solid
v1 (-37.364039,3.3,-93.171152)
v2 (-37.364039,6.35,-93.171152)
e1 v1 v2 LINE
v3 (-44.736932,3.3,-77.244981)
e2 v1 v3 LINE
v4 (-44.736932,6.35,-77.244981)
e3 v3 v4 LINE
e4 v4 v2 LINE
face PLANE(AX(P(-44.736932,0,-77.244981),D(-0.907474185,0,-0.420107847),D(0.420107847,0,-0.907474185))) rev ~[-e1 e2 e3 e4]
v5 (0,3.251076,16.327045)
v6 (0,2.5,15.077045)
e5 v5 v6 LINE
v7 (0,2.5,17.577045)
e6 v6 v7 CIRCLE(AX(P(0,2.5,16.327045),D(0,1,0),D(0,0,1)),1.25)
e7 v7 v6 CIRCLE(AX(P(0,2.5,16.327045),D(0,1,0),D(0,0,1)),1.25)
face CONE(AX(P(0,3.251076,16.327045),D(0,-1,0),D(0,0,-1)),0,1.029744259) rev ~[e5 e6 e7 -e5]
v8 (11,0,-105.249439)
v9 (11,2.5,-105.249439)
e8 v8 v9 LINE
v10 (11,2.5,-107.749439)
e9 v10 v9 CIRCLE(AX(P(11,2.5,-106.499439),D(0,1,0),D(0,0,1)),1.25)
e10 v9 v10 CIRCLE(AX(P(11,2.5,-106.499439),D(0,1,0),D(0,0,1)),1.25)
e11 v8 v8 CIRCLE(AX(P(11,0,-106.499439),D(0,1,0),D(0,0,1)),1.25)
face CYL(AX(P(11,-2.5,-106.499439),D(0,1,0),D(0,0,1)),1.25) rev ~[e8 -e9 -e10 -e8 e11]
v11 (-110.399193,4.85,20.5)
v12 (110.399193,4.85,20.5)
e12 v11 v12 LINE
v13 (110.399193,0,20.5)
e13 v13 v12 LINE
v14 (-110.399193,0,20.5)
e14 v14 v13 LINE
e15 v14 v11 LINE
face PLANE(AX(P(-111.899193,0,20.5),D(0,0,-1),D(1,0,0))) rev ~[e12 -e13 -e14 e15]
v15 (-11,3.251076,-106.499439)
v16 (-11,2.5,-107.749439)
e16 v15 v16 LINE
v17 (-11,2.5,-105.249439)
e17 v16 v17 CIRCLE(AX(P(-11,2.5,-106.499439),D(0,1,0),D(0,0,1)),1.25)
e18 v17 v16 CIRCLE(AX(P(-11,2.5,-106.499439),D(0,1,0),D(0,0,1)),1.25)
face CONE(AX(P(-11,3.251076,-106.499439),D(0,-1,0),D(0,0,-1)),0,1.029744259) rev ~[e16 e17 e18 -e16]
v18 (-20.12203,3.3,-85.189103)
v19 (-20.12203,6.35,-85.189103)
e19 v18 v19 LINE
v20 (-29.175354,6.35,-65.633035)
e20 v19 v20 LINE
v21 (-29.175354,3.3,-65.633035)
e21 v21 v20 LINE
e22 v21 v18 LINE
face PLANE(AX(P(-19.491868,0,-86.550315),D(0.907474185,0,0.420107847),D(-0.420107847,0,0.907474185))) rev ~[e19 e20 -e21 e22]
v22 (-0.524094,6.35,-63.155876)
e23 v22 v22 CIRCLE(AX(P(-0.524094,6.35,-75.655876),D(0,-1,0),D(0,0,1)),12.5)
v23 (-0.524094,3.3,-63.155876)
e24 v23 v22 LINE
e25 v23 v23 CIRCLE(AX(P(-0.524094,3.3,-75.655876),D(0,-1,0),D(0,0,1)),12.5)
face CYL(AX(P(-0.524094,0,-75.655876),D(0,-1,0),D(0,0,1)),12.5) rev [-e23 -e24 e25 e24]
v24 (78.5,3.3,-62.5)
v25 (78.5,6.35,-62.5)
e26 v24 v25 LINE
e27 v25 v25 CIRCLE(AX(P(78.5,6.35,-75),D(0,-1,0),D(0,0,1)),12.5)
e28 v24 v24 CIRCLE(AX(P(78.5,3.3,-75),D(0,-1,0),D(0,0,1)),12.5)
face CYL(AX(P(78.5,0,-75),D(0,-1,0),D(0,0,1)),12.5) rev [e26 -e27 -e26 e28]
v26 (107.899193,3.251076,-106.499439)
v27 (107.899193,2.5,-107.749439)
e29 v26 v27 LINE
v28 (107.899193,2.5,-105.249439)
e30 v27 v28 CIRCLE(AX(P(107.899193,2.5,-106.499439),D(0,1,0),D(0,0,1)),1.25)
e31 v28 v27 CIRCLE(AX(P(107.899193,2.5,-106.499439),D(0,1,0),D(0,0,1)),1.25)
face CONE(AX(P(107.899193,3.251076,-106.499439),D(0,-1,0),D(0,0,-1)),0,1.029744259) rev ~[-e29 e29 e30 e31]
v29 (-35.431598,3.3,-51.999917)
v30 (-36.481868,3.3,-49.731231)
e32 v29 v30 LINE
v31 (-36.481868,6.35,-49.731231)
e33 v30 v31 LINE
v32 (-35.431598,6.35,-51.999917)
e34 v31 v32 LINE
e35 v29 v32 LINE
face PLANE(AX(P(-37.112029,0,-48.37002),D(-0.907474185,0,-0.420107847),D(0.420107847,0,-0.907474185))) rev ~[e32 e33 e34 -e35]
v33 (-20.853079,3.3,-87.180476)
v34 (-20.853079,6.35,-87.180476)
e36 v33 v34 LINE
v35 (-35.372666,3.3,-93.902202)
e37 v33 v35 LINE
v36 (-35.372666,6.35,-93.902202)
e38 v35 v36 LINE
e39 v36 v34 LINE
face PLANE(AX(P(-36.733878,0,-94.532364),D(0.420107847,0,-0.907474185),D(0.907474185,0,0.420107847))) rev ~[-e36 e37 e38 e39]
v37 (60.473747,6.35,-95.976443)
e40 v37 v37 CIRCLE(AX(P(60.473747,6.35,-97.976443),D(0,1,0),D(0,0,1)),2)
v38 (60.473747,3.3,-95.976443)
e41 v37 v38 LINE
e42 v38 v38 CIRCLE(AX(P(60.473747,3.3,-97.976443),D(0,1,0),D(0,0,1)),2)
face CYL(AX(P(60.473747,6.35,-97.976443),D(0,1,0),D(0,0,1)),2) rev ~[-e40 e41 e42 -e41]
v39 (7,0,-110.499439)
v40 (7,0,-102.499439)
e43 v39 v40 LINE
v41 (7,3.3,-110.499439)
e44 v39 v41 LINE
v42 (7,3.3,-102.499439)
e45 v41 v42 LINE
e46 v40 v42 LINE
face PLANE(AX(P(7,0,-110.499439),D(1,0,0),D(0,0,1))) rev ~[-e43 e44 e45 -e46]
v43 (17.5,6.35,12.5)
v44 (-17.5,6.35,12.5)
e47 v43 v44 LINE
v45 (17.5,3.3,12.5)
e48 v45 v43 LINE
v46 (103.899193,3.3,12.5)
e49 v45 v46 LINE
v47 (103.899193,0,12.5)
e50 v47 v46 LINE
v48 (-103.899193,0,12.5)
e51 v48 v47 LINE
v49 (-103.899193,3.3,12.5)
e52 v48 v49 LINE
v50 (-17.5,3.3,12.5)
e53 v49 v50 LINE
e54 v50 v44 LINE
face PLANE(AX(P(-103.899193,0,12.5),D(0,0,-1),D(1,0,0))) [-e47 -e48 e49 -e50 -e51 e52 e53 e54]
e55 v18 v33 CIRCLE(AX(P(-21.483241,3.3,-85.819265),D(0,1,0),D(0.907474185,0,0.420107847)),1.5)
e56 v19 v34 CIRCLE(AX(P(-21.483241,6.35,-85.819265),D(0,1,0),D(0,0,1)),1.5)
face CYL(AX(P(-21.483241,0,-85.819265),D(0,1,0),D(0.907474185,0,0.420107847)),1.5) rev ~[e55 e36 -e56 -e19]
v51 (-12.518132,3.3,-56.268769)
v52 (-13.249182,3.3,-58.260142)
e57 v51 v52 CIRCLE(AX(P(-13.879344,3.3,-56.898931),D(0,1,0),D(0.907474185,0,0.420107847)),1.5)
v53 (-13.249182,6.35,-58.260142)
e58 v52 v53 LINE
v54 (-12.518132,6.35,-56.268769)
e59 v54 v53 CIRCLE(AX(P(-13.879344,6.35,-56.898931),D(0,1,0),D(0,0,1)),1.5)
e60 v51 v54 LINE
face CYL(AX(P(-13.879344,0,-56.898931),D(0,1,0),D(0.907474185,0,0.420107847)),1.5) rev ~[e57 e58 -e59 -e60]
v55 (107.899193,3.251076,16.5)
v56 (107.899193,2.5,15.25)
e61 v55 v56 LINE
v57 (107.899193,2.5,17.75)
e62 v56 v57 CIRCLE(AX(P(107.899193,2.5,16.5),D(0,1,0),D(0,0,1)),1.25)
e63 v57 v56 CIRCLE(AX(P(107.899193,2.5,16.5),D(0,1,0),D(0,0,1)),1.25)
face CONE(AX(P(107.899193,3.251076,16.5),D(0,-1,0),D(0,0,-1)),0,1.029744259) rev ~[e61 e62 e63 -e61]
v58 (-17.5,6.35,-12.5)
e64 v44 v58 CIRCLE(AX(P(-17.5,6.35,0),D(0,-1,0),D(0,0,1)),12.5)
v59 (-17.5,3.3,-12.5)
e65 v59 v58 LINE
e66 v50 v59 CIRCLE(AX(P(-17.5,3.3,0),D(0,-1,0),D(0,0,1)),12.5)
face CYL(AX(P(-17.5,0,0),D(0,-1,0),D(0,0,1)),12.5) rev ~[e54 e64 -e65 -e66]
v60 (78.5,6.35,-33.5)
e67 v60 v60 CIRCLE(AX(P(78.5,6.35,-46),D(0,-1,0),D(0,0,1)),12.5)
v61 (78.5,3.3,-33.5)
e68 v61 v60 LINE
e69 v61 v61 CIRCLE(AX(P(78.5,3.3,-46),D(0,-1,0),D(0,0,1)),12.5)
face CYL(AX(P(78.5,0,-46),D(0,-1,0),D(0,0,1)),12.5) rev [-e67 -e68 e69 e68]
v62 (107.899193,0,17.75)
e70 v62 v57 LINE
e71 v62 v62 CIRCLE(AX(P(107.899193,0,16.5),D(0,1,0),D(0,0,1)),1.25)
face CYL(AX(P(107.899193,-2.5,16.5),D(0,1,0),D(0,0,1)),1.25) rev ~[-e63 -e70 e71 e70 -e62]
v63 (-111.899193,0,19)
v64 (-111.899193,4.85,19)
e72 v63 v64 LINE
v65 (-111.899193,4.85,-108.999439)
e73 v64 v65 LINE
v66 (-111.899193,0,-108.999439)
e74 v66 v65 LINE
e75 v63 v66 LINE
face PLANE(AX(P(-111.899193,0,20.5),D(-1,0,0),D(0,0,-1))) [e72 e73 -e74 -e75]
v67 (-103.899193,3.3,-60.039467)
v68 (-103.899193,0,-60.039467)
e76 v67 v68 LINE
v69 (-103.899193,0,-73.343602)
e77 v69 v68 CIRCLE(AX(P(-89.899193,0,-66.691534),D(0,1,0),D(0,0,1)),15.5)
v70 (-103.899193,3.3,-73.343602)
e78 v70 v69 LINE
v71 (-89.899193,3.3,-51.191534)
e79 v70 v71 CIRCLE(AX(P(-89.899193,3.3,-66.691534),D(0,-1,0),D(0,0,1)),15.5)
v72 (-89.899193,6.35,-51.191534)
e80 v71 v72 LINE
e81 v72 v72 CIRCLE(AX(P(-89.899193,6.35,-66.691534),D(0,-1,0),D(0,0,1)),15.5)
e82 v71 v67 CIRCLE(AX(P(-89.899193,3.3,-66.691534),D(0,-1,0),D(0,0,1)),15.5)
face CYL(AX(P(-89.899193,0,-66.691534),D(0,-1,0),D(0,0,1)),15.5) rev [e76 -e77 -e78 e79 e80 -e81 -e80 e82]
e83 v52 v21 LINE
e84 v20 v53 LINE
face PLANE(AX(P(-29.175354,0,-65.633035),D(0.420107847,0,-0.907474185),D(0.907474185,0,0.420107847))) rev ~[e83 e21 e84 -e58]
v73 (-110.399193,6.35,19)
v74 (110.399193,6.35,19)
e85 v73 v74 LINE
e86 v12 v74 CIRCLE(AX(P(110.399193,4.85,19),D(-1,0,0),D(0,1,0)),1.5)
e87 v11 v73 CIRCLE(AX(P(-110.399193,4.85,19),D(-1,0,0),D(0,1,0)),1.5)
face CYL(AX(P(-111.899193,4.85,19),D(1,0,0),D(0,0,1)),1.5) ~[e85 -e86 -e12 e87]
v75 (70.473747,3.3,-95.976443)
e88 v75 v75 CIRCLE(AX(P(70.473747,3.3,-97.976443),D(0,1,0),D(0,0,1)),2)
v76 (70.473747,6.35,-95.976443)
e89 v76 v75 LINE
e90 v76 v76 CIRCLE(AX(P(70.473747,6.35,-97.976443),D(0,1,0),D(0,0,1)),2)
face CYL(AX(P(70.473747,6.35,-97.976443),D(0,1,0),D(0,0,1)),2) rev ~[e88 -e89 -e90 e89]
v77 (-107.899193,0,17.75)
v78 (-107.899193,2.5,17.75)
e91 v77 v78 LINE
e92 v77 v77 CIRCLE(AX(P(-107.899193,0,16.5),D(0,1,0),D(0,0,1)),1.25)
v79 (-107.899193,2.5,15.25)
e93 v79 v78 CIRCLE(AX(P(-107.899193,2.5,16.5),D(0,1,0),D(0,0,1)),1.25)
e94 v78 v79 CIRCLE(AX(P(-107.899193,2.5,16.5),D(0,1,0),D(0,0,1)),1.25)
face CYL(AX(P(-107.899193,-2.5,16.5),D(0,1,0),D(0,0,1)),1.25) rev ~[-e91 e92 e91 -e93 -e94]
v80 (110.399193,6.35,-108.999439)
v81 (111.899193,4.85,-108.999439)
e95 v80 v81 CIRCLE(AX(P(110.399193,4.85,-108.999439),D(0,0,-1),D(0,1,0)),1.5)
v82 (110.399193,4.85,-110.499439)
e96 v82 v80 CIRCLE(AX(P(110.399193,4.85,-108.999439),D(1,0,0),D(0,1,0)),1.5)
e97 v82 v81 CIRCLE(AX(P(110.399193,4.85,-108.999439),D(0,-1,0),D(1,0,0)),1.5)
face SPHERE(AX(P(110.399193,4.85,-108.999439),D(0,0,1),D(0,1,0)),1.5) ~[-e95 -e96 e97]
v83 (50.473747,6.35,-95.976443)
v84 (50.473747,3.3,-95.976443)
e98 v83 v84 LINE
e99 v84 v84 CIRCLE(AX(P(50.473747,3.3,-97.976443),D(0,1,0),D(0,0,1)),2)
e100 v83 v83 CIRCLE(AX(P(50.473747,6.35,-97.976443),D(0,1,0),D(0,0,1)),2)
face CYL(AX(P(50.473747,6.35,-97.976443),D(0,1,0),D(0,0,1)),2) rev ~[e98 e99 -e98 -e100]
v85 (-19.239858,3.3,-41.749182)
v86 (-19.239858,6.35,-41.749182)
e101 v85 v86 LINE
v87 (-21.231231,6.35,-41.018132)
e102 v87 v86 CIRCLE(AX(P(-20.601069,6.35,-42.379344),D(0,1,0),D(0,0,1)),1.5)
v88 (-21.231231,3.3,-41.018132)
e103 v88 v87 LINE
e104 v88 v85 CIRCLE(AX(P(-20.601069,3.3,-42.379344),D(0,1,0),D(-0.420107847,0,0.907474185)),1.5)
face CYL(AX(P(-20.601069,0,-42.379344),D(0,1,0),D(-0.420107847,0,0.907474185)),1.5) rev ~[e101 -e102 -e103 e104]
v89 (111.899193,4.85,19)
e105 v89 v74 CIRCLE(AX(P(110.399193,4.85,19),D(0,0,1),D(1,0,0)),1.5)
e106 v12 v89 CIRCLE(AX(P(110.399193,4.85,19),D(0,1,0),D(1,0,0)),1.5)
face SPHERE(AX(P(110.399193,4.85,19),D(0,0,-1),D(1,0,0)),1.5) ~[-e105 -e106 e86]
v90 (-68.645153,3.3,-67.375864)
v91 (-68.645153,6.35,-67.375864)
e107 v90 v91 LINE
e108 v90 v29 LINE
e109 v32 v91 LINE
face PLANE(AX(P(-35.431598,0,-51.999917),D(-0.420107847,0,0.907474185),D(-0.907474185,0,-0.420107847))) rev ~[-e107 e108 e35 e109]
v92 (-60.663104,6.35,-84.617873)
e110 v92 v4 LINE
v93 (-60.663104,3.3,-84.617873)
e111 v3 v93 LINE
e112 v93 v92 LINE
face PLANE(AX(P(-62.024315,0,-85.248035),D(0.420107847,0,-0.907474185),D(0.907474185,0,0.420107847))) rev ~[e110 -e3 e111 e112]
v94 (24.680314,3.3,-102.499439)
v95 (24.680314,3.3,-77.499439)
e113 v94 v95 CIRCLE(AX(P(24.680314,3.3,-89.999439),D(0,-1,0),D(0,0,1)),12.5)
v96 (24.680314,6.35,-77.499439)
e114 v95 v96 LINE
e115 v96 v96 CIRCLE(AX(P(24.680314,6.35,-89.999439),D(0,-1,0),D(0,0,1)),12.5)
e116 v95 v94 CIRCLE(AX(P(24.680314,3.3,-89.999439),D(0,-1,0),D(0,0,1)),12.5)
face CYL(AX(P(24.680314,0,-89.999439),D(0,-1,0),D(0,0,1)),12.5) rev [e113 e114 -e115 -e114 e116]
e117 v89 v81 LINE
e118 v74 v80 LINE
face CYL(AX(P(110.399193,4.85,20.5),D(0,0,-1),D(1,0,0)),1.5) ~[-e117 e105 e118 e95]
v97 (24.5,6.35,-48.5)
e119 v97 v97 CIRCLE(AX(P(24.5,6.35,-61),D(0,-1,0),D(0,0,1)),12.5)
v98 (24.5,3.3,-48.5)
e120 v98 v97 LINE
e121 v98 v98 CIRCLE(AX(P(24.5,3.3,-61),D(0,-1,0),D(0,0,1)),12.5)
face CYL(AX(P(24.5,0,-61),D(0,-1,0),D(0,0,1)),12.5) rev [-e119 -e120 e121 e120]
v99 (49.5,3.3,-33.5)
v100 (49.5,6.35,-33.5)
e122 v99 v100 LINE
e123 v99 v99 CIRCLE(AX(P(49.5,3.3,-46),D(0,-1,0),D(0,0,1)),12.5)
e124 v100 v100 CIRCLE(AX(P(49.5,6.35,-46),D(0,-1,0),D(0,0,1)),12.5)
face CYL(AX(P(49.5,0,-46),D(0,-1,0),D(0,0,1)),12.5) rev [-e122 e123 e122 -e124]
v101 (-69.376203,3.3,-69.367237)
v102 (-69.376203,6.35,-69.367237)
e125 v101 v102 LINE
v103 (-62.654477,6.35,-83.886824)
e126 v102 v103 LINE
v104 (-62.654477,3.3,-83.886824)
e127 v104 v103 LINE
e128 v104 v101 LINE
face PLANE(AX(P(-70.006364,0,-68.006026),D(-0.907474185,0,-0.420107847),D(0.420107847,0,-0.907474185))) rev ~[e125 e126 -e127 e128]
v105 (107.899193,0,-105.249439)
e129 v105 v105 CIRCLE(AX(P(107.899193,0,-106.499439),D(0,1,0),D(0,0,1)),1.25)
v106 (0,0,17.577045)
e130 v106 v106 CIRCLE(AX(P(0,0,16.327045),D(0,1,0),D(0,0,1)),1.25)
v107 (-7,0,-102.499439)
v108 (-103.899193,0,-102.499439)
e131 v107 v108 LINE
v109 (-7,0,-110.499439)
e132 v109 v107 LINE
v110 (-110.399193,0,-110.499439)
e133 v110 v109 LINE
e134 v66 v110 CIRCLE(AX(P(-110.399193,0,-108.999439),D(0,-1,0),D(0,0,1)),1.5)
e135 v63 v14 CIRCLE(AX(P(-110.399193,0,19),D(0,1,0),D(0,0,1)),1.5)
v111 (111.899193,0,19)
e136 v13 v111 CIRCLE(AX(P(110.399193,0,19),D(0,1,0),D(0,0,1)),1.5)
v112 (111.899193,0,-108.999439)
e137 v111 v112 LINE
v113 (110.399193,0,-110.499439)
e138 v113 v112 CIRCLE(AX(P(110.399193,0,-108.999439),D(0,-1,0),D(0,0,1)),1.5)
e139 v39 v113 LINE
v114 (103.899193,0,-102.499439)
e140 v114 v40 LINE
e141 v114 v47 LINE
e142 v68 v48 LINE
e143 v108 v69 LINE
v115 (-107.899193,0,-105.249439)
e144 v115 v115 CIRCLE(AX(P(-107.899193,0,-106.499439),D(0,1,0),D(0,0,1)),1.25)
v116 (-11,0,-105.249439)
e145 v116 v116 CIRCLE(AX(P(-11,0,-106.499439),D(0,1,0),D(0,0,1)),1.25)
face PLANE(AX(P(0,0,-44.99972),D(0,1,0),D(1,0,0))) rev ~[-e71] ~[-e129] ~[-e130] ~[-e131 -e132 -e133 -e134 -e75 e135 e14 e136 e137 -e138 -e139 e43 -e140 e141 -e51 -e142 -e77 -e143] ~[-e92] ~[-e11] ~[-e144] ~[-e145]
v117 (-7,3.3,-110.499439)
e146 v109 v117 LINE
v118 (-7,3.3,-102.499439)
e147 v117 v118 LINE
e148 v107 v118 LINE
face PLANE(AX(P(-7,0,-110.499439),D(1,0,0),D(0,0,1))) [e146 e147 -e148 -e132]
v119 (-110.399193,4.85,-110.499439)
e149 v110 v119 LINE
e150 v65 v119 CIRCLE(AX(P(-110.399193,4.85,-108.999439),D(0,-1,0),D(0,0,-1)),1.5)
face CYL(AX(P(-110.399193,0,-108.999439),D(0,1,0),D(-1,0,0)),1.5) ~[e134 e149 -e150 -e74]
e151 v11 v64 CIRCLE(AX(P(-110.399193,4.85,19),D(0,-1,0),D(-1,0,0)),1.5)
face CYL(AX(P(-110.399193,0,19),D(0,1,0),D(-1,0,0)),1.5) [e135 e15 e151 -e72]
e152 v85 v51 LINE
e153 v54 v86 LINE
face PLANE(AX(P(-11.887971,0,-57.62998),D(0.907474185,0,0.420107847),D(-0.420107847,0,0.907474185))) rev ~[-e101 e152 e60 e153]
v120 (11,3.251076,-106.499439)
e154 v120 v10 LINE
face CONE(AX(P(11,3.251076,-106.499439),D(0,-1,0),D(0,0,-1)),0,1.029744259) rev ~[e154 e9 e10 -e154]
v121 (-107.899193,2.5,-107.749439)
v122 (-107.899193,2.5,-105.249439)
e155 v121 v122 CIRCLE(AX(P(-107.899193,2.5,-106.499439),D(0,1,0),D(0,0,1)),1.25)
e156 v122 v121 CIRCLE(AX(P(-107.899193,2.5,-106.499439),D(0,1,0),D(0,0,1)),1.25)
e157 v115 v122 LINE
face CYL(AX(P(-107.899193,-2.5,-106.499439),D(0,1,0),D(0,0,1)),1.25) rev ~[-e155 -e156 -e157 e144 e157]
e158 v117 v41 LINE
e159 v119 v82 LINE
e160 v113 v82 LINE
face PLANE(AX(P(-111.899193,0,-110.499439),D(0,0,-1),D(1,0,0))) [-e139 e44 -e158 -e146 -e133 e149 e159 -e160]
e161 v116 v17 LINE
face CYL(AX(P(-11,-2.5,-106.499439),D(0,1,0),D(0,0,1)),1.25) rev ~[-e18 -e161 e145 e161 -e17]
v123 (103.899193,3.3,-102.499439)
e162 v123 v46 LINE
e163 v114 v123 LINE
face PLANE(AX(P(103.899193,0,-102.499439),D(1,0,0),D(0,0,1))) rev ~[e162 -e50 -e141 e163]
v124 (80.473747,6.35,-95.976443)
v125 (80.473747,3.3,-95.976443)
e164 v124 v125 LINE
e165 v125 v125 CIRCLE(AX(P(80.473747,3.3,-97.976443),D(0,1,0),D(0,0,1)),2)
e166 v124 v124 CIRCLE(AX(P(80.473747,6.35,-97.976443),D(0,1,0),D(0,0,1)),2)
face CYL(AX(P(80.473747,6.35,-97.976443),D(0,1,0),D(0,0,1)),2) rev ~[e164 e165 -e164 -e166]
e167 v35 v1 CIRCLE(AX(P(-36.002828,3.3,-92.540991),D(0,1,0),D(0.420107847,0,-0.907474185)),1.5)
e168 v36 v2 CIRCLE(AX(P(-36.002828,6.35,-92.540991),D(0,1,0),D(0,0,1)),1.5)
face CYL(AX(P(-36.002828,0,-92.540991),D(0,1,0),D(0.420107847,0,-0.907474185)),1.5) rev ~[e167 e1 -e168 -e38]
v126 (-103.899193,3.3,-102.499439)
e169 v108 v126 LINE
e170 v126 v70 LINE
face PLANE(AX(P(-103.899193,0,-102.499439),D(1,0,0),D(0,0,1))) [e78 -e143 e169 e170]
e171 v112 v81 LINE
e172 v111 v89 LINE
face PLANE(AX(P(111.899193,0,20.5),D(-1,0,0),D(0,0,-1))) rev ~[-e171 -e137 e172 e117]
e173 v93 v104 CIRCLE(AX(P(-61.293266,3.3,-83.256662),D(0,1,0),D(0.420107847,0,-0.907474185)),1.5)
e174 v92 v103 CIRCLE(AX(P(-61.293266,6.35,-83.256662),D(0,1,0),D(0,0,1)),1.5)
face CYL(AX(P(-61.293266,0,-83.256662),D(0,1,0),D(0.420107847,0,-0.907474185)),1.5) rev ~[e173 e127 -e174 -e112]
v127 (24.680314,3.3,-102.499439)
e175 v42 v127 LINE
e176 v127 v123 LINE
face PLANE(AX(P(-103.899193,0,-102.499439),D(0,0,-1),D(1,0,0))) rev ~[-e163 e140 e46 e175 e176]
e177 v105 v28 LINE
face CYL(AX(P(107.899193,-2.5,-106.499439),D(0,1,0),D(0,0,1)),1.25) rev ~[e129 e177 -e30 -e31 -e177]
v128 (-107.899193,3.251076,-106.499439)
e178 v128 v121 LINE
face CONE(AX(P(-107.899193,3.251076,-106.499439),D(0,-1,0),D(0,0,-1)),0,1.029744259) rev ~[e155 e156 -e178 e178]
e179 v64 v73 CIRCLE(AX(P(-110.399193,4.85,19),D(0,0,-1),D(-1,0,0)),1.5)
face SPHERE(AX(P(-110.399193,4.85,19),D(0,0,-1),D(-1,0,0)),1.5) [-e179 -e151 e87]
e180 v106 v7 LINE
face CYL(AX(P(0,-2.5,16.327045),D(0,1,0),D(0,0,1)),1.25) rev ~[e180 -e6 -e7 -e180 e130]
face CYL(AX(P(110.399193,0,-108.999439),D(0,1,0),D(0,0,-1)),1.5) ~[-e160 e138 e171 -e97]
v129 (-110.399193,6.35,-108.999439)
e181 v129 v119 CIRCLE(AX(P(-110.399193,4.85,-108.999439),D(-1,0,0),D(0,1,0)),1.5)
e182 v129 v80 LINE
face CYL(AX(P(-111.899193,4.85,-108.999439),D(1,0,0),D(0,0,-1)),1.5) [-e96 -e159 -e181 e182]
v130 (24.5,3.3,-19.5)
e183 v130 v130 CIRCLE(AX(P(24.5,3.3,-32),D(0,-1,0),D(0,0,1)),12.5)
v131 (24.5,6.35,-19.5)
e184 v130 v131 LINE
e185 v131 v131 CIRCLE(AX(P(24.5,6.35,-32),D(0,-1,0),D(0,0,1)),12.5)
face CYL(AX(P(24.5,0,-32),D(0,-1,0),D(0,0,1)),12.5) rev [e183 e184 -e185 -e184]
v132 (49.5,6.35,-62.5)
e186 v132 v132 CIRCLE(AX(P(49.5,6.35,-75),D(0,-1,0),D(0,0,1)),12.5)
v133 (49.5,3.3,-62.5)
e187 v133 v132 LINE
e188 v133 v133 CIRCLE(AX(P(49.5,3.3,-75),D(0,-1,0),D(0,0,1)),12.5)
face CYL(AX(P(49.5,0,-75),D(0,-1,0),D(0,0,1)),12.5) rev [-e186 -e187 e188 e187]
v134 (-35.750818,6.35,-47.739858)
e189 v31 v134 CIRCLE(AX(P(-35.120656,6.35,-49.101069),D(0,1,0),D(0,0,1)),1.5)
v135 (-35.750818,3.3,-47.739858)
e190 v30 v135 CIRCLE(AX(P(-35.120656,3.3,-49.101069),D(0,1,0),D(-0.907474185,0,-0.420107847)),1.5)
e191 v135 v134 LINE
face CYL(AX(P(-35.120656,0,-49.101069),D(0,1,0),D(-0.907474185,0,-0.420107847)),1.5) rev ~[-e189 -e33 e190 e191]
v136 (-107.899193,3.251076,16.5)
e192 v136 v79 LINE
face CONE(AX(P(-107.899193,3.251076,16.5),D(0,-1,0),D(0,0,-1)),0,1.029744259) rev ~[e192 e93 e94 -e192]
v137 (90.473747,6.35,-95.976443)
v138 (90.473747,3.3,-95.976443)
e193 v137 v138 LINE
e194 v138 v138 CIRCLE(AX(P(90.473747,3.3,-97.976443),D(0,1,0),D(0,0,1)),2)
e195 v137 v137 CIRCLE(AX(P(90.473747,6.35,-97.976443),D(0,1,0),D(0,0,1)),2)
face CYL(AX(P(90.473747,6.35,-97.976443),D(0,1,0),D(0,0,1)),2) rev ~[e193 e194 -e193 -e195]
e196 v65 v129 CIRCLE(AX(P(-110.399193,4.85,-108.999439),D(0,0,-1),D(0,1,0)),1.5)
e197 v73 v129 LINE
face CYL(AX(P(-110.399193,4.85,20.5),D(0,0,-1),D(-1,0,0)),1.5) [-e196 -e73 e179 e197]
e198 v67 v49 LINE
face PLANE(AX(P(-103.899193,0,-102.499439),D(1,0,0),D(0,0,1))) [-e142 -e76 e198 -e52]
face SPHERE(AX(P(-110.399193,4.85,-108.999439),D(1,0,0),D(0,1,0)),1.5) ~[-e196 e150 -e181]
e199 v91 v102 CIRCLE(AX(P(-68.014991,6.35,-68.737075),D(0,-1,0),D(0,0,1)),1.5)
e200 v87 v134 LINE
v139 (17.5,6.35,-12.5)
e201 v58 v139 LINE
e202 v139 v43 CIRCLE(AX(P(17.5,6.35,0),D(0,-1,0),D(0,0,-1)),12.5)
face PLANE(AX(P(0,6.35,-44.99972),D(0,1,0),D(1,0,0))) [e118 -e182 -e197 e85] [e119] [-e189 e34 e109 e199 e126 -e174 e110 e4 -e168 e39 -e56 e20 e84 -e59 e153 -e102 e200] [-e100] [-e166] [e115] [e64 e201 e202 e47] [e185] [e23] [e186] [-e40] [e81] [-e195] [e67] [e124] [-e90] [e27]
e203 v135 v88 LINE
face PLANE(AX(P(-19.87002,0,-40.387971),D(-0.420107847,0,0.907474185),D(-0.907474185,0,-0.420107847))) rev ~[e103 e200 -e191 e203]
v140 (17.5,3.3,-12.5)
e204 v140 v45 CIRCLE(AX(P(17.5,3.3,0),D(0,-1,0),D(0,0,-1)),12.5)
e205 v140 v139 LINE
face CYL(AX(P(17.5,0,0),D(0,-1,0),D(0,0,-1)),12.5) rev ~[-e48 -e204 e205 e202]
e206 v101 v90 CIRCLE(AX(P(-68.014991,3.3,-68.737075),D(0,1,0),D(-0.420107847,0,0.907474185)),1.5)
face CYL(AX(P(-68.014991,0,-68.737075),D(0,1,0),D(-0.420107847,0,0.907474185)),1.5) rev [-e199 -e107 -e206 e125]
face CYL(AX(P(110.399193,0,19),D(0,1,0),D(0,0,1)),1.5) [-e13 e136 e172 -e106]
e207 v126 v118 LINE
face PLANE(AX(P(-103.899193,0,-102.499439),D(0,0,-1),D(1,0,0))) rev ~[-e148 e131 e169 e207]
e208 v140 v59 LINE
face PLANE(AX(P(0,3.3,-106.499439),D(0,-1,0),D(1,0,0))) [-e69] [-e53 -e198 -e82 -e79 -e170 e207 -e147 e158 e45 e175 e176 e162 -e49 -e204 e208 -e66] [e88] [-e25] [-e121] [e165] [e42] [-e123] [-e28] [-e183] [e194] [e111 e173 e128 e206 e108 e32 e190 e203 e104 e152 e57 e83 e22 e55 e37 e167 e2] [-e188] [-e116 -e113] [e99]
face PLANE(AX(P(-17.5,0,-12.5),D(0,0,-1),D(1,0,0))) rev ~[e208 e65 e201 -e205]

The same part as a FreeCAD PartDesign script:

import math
import FreeCAD as App
import Part
import Sketcher

V = App.Vector


def edges_at(feature, points):
    """Names of the edges that pass closest to the given points."""
    edges = feature.Shape.Edges
    near = lambda p: min(range(len(edges)), key=lambda i: edges[i].distToShape(Part.Vertex(*p))[0])
    return sorted({f"Edge{near(p) + 1}" for p in points})


def add_polygon(sketch, points):
    """Adds a closed chain of lines whose ends are joined by coincident constraints."""
    first, n = sketch.GeometryCount, len(points)
    for a, b in zip(points, points[1:] + points[:1]):
        sketch.addGeometry(Part.LineSegment(App.Vector(*a, 0), App.Vector(*b, 0)), False)
    for i in range(n):
        sketch.addConstraint(Sketcher.Constraint("Coincident", first + i, 2, first + (i + 1) % n, 1))

doc = App.newDocument("Part")
body = doc.addObject("PartDesign::Body", "Body")

sketch1 = body.newObject("Sketcher::SketchObject", "Sketch")
sketch1.AttachmentSupport = (doc.getObject("XZ_Plane"), [""])
sketch1.MapMode = "FlatFace"
add_polygon(sketch1, [(-111.899193, -110.499439), (-111.899193, 20.5), (111.899193, 20.5), (111.899193, -110.499439)])
sketch1.addConstraint(Sketcher.Constraint("Vertical", 0))
sketch1.addConstraint(Sketcher.Constraint("Horizontal", 1))
sketch1.addConstraint(Sketcher.Constraint("Vertical", 2))
sketch1.addConstraint(Sketcher.Constraint("Horizontal", 3))
sketch1.addConstraint(Sketcher.Constraint("DistanceY", -1, 1, 0, 2, 20.5))
sketch1.addConstraint(Sketcher.Constraint("DistanceY", 0, 1, 0, 2, 130.999439))
sketch1.addConstraint(Sketcher.Constraint("DistanceX", 1, 1, 1, 2, 223.798385))
sketch1.addConstraint(Sketcher.Constraint("DistanceX", 0, 2, -1, 1, 111.899193))
pad1 = body.newObject("PartDesign::Pad", "Pad")
pad1.Profile = sketch1
pad1.Length = 6.35
pad1.Reversed = True

sketch2 = body.newObject("Sketcher::SketchObject", "Sketch001")
sketch2.AttachmentSupport = (doc.getObject("XZ_Plane"), [""])
sketch2.MapMode = "FlatFace"
sketch2.addGeometry(Part.Circle(V(24.5, -32, 0), V(0, 0, 1), 12.5), False)
sketch2.addConstraint(Sketcher.Constraint("Diameter", 0, 25.0))
sketch2.addConstraint(Sketcher.Constraint("DistanceY", 0, 3, -1, 1, 32.0))
sketch2.addConstraint(Sketcher.Constraint("DistanceX", -1, 1, 0, 3, 24.5))
pocket1 = body.newObject("PartDesign::Pocket", "Pocket")
pocket1.Profile = sketch2
pocket1.Type = "UpToFirst"

sketch3 = body.newObject("Sketcher::SketchObject", "Sketch002")
sketch3.AttachmentSupport = (doc.getObject("XZ_Plane"), [""])
sketch3.MapMode = "FlatFace"
sketch3.addGeometry(Part.Circle(V(24.5, -61, 0), V(0, 0, 1), 12.5), False)
sketch3.addConstraint(Sketcher.Constraint("Diameter", 0, 25.0))
sketch3.addConstraint(Sketcher.Constraint("DistanceY", 0, 3, -1, 1, 61.0))
sketch3.addConstraint(Sketcher.Constraint("DistanceX", -1, 1, 0, 3, 24.5))
pocket2 = body.newObject("PartDesign::Pocket", "Pocket001")
pocket2.Profile = sketch3
pocket2.Type = "UpToFirst"

sketch4 = body.newObject("Sketcher::SketchObject", "Sketch003")
sketch4.AttachmentSupport = (doc.getObject("XZ_Plane"), [""])
sketch4.MapMode = "FlatFace"
sketch4.addGeometry(Part.Circle(V(49.5, -46, 0), V(0, 0, 1), 12.5), False)
sketch4.addConstraint(Sketcher.Constraint("Diameter", 0, 25.0))
sketch4.addConstraint(Sketcher.Constraint("DistanceY", 0, 3, -1, 1, 46.0))
sketch4.addConstraint(Sketcher.Constraint("DistanceX", -1, 1, 0, 3, 49.5))
pocket3 = body.newObject("PartDesign::Pocket", "Pocket002")
pocket3.Profile = sketch4
pocket3.Type = "UpToFirst"

sketch5 = body.newObject("Sketcher::SketchObject", "Sketch004")
sketch5.AttachmentSupport = (doc.getObject("XZ_Plane"), [""])
sketch5.MapMode = "FlatFace"
sketch5.addGeometry(Part.Circle(V(49.5, -75, 0), V(0, 0, 1), 12.5), False)
sketch5.addConstraint(Sketcher.Constraint("Diameter", 0, 25.0))
sketch5.addConstraint(Sketcher.Constraint("DistanceY", 0, 3, -1, 1, 75.0))
sketch5.addConstraint(Sketcher.Constraint("DistanceX", -1, 1, 0, 3, 49.5))
pocket4 = body.newObject("PartDesign::Pocket", "Pocket003")
pocket4.Profile = sketch5
pocket4.Type = "UpToFirst"

sketch6 = body.newObject("Sketcher::SketchObject", "Sketch005")
sketch6.AttachmentSupport = (doc.getObject("XZ_Plane"), [""])
sketch6.MapMode = "FlatFace"
sketch6.addGeometry(Part.Circle(V(78.5, -75, 0), V(0, 0, 1), 12.5), False)
sketch6.addConstraint(Sketcher.Constraint("Diameter", 0, 25.0))
sketch6.addConstraint(Sketcher.Constraint("DistanceY", 0, 3, -1, 1, 75.0))
sketch6.addConstraint(Sketcher.Constraint("DistanceX", -1, 1, 0, 3, 78.5))
pocket5 = body.newObject("PartDesign::Pocket", "Pocket004")
pocket5.Profile = sketch6
pocket5.Type = "UpToFirst"

sketch7 = body.newObject("Sketcher::SketchObject", "Sketch006")
sketch7.AttachmentSupport = (doc.getObject("XZ_Plane"), [""])
sketch7.MapMode = "FlatFace"
sketch7.addGeometry(Part.Circle(V(78.5, -46, 0), V(0, 0, 1), 12.5), False)
sketch7.addConstraint(Sketcher.Constraint("Diameter", 0, 25.0))
sketch7.addConstraint(Sketcher.Constraint("DistanceY", 0, 3, -1, 1, 46.0))
sketch7.addConstraint(Sketcher.Constraint("DistanceX", -1, 1, 0, 3, 78.5))
pocket6 = body.newObject("PartDesign::Pocket", "Pocket005")
pocket6.Profile = sketch7
pocket6.Type = "UpToFirst"

sketch8 = body.newObject("Sketcher::SketchObject", "Sketch007")
sketch8.AttachmentSupport = (doc.getObject("XZ_Plane"), [""])
sketch8.MapMode = "FlatFace"
sketch8.addGeometry(Part.Circle(V(-89.899193, -66.691534, 0), V(0, 0, 1), 15.5), False)
sketch8.addConstraint(Sketcher.Constraint("Diameter", 0, 31.0))
sketch8.addConstraint(Sketcher.Constraint("DistanceX", 0, 3, -1, 1, 89.899193))
sketch8.addConstraint(Sketcher.Constraint("DistanceY", 0, 3, -1, 1, 66.691534))
pocket7 = body.newObject("PartDesign::Pocket", "Pocket006")
pocket7.Profile = sketch8
pocket7.Type = "UpToFirst"

sketch9 = body.newObject("Sketcher::SketchObject", "Sketch008")
sketch9.AttachmentSupport = (doc.getObject("XZ_Plane"), [""])
sketch9.MapMode = "FlatFace"
sketch9.addGeometry(Part.Circle(V(24.680314, -89.999439, 0), V(0, 0, 1), 12.5), False)
sketch9.addConstraint(Sketcher.Constraint("Diameter", 0, 25.0))
sketch9.addConstraint(Sketcher.Constraint("DistanceY", 0, 3, -1, 1, 89.999439))
sketch9.addConstraint(Sketcher.Constraint("DistanceX", -1, 1, 0, 3, 24.680314))
pocket8 = body.newObject("PartDesign::Pocket", "Pocket007")
pocket8.Profile = sketch9
pocket8.Type = "UpToFirst"

sketch10 = body.newObject("Sketcher::SketchObject", "Sketch009")
sketch10.AttachmentSupport = (doc.getObject("XZ_Plane"), [""])
sketch10.MapMode = "FlatFace"
sketch10.addGeometry(Part.Circle(V(-0.524094, -75.655876, 0), V(0, 0, 1), 12.5), False)
sketch10.addConstraint(Sketcher.Constraint("Diameter", 0, 25.0))
sketch10.addConstraint(Sketcher.Constraint("DistanceX", 0, 3, -1, 1, 0.524094))
sketch10.addConstraint(Sketcher.Constraint("DistanceY", 0, 3, -1, 1, 75.655876))
pocket9 = body.newObject("PartDesign::Pocket", "Pocket008")
pocket9.Profile = sketch10
pocket9.Type = "UpToFirst"

sketch11 = body.newObject("Sketcher::SketchObject", "Sketch010")
sketch11.AttachmentSupport = (doc.getObject("XZ_Plane"), [""])
sketch11.MapMode = "FlatFace"
sketch11.addGeometry(Part.LineSegment(V(-17.5, 12.5, 0), V(17.5, 12.5, 0)), False)
sketch11.addGeometry(Part.ArcOfCircle(Part.Circle(V(17.5, 0, 0), V(0, 0, 1), 12.5), math.radians(-90), math.radians(90)), False)
sketch11.addGeometry(Part.LineSegment(V(17.5, -12.5, 0), V(-17.5, -12.5, 0)), False)
sketch11.addGeometry(Part.ArcOfCircle(Part.Circle(V(-17.5, 0, 0), V(0, 0, 1), 12.5), math.radians(90), math.radians(270)), False)
sketch11.addConstraint(Sketcher.Constraint("Tangent", 0, 2, 1, 2))
sketch11.addConstraint(Sketcher.Constraint("Tangent", 1, 1, 2, 1))
sketch11.addConstraint(Sketcher.Constraint("Tangent", 2, 2, 3, 2))
sketch11.addConstraint(Sketcher.Constraint("Tangent", 3, 1, 0, 1))
sketch11.addConstraint(Sketcher.Constraint("Horizontal", 0))
sketch11.addConstraint(Sketcher.Constraint("Horizontal", 2))
sketch11.addConstraint(Sketcher.Constraint("Symmetric", 1, 3, 3, 3, -1, 1))
sketch11.addConstraint(Sketcher.Constraint("Radius", 1, 12.5))
sketch11.addConstraint(Sketcher.Constraint("DistanceX", 0, 1, 0, 2, 35.0))
pocket10 = body.newObject("PartDesign::Pocket", "Pocket009")
pocket10.Profile = sketch11
pocket10.Type = "UpToFirst"

sketch12 = body.newObject("Sketcher::SketchObject", "Sketch011")
sketch12.AttachmentSupport = (doc.getObject("XZ_Plane"), [""])
sketch12.MapMode = "FlatFace"
add_polygon(sketch12, [(-62.024315, -85.248035), (-70.006364, -68.006026), (-35.431598, -51.999917), (-37.112029, -48.37002), (-19.87002, -40.387971), (-11.887971, -57.62998), (-29.175354, -65.633035), (-19.491868, -86.550315), (-36.733878, -94.532364), (-44.736932, -77.244981)])
sketch12.addConstraint(Sketcher.Constraint("Perpendicular", 0, 1))
sketch12.addConstraint(Sketcher.Constraint("Perpendicular", 1, 2))
sketch12.addConstraint(Sketcher.Constraint("Perpendicular", 2, 3))
sketch12.addConstraint(Sketcher.Constraint("Perpendicular", 3, 4))
sketch12.addConstraint(Sketcher.Constraint("Perpendicular", 4, 5))
sketch12.addConstraint(Sketcher.Constraint("Perpendicular", 5, 6))
sketch12.addConstraint(Sketcher.Constraint("Perpendicular", 6, 7))
sketch12.addConstraint(Sketcher.Constraint("Perpendicular", 7, 8))
sketch12.addConstraint(Sketcher.Constraint("Perpendicular", 8, 9))
sketch12.addConstraint(Sketcher.Constraint("Equal", 0, 3))
sketch12.addConstraint(Sketcher.Constraint("Equal", 3, 4))
sketch12.addConstraint(Sketcher.Constraint("Equal", 4, 7))
sketch12.addConstraint(Sketcher.Constraint("Equal", 5, 8))
sketch12.addConstraint(Sketcher.Constraint("Equal", 8, 9))
sketch12.addConstraint(Sketcher.Constraint("Distance", 0, 19.0))
sketch12.addConstraint(Sketcher.Constraint("Distance", 2, 4.0))
sketch12.addConstraint(Sketcher.Constraint("Distance", 1, 38.1))
sketch12.addConstraint(Sketcher.Constraint("DistanceY", 9, 2, 5, 2, 19.615))
sketch12.addConstraint(Sketcher.Constraint("DistanceX", 2, 2, -1, 1, 37.112029))
sketch12.addConstraint(Sketcher.Constraint("DistanceY", 2, 2, -1, 1, 48.37002))
pocket11 = body.newObject("PartDesign::Pocket", "Pocket010")
pocket11.Profile = sketch12
pocket11.Type = "UpToFirst"
doc.recompute()

fillet = body.newObject("PartDesign::Fillet", "Fillet")
fillet.Base = (pocket11, edges_at(pocket11, [
    (-19.492, 3.175, -86.55),
    (-36.734, 3.175, -94.532),
    (-62.024, 3.175, -85.248),
    (-70.006, 3.175, -68.006),
    (-37.112, 3.175, -48.37),
    (-19.87, 3.175, -40.388),
    (-11.888, 3.175, -57.63),
]))
fillet.Radius = 1.5

sketch13 = body.newObject("Sketcher::SketchObject", "Sketch012")
sketch13.AttachmentSupport = (doc.getObject("XZ_Plane"), [""])
sketch13.MapMode = "FlatFace"
sketch13.AttachmentOffset = App.Placement(V(0, 0, -6.35), App.Rotation())
sketch13.addGeometry(Part.Circle(V(50.473747, -97.976443, 0), V(0, 0, 1), 2), False)
sketch13.addConstraint(Sketcher.Constraint("Diameter", 0, 4.0))
sketch13.addConstraint(Sketcher.Constraint("DistanceX", -1, 1, 0, 3, 50.473747))
sketch13.addConstraint(Sketcher.Constraint("DistanceY", 0, 3, -1, 1, 97.976443))
pocket12 = body.newObject("PartDesign::Pocket", "Pocket011")
pocket12.Profile = sketch13
pocket12.Type = "UpToFirst"
pocket12.Reversed = True

sketch14 = body.newObject("Sketcher::SketchObject", "Sketch013")
sketch14.AttachmentSupport = (doc.getObject("XZ_Plane"), [""])
sketch14.MapMode = "FlatFace"
sketch14.AttachmentOffset = App.Placement(V(0, 0, -6.35), App.Rotation())
sketch14.addGeometry(Part.Circle(V(60.473747, -97.976443, 0), V(0, 0, 1), 2), False)
sketch14.addConstraint(Sketcher.Constraint("Diameter", 0, 4.0))
sketch14.addConstraint(Sketcher.Constraint("DistanceX", -1, 1, 0, 3, 60.473747))
sketch14.addConstraint(Sketcher.Constraint("DistanceY", 0, 3, -1, 1, 97.976443))
pocket13 = body.newObject("PartDesign::Pocket", "Pocket012")
pocket13.Profile = sketch14
pocket13.Type = "UpToFirst"
pocket13.Reversed = True

sketch15 = body.newObject("Sketcher::SketchObject", "Sketch014")
sketch15.AttachmentSupport = (doc.getObject("XZ_Plane"), [""])
sketch15.MapMode = "FlatFace"
sketch15.AttachmentOffset = App.Placement(V(0, 0, -6.35), App.Rotation())
sketch15.addGeometry(Part.Circle(V(70.473747, -97.976443, 0), V(0, 0, 1), 2), False)
sketch15.addConstraint(Sketcher.Constraint("Diameter", 0, 4.0))
sketch15.addConstraint(Sketcher.Constraint("DistanceX", -1, 1, 0, 3, 70.473747))
sketch15.addConstraint(Sketcher.Constraint("DistanceY", 0, 3, -1, 1, 97.976443))
pocket14 = body.newObject("PartDesign::Pocket", "Pocket013")
pocket14.Profile = sketch15
pocket14.Type = "UpToFirst"
pocket14.Reversed = True

sketch16 = body.newObject("Sketcher::SketchObject", "Sketch015")
sketch16.AttachmentSupport = (doc.getObject("XZ_Plane"), [""])
sketch16.MapMode = "FlatFace"
sketch16.AttachmentOffset = App.Placement(V(0, 0, -6.35), App.Rotation())
sketch16.addGeometry(Part.Circle(V(80.473747, -97.976443, 0), V(0, 0, 1), 2), False)
sketch16.addConstraint(Sketcher.Constraint("Diameter", 0, 4.0))
sketch16.addConstraint(Sketcher.Constraint("DistanceX", -1, 1, 0, 3, 80.473747))
sketch16.addConstraint(Sketcher.Constraint("DistanceY", 0, 3, -1, 1, 97.976443))
pocket15 = body.newObject("PartDesign::Pocket", "Pocket014")
pocket15.Profile = sketch16
pocket15.Type = "UpToFirst"
pocket15.Reversed = True

sketch17 = body.newObject("Sketcher::SketchObject", "Sketch016")
sketch17.AttachmentSupport = (doc.getObject("XZ_Plane"), [""])
sketch17.MapMode = "FlatFace"
sketch17.AttachmentOffset = App.Placement(V(0, 0, -6.35), App.Rotation())
sketch17.addGeometry(Part.Circle(V(90.473747, -97.976443, 0), V(0, 0, 1), 2), False)
sketch17.addConstraint(Sketcher.Constraint("Diameter", 0, 4.0))
sketch17.addConstraint(Sketcher.Constraint("DistanceX", -1, 1, 0, 3, 90.473747))
sketch17.addConstraint(Sketcher.Constraint("DistanceY", 0, 3, -1, 1, 97.976443))
pocket16 = body.newObject("PartDesign::Pocket", "Pocket015")
pocket16.Profile = sketch17
pocket16.Type = "UpToFirst"
pocket16.Reversed = True

sketch18 = body.newObject("Sketcher::SketchObject", "Sketch017")
sketch18.AttachmentSupport = (doc.getObject("XZ_Plane"), [""])
sketch18.MapMode = "FlatFace"
add_polygon(sketch18, [(-103.899193, 12.5), (-103.899193, -102.499439), (103.899193, -102.499439), (103.899193, 12.5)])
sketch18.addConstraint(Sketcher.Constraint("Vertical", 0))
sketch18.addConstraint(Sketcher.Constraint("Horizontal", 1))
sketch18.addConstraint(Sketcher.Constraint("Vertical", 2))
sketch18.addConstraint(Sketcher.Constraint("Horizontal", 3))
sketch18.addConstraint(Sketcher.Constraint("DistanceY", -1, 1, 2, 2, 12.5))
sketch18.addConstraint(Sketcher.Constraint("DistanceY", 0, 2, 0, 1, 114.999439))
sketch18.addConstraint(Sketcher.Constraint("DistanceX", 1, 1, 1, 2, 207.798385))
sketch18.addConstraint(Sketcher.Constraint("DistanceX", 0, 2, -1, 1, 103.899193))
pocket17 = body.newObject("PartDesign::Pocket", "Pocket016")
pocket17.Profile = sketch18
pocket17.Length = 3.3

sketch19 = body.newObject("Sketcher::SketchObject", "Sketch018")
sketch19.AttachmentSupport = (doc.getObject("XZ_Plane"), [""])
sketch19.MapMode = "FlatFace"
add_polygon(sketch19, [(-7, -102.499439), (-7, -110.499439), (7, -110.499439), (7, -102.499439)])
sketch19.addConstraint(Sketcher.Constraint("Vertical", 0))
sketch19.addConstraint(Sketcher.Constraint("Horizontal", 1))
sketch19.addConstraint(Sketcher.Constraint("Vertical", 2))
sketch19.addConstraint(Sketcher.Constraint("Horizontal", 3))
sketch19.addConstraint(Sketcher.Constraint("DistanceX", 1, 1, 1, 2, 14.0))
sketch19.addConstraint(Sketcher.Constraint("DistanceY", 0, 2, 0, 1, 8.0))
sketch19.addConstraint(Sketcher.Constraint("DistanceX", 0, 2, -1, 1, 7.0))
sketch19.addConstraint(Sketcher.Constraint("DistanceY", 0, 2, -1, 1, 110.499439))
pocket18 = body.newObject("PartDesign::Pocket", "Pocket017")
pocket18.Profile = sketch19
pocket18.Length = 3.3

sketch20 = body.newObject("Sketcher::SketchObject", "Sketch019")
sketch20.AttachmentSupport = (doc.getObject("XZ_Plane"), [""])
sketch20.MapMode = "FlatFace"
sketch20.addGeometry(Part.Circle(V(-107.899193, -106.499439, 0), V(0, 0, 1), 1.25), False)
sketch20.addGeometry(Part.Circle(V(-11, -106.499439, 0), V(0, 0, 1), 1.25), False)
sketch20.addGeometry(Part.Circle(V(11, -106.499439, 0), V(0, 0, 1), 1.25), False)
sketch20.addGeometry(Part.Circle(V(107.899193, -106.499439, 0), V(0, 0, 1), 1.25), False)
sketch20.addGeometry(Part.Circle(V(107.899193, 16.5, 0), V(0, 0, 1), 1.25), False)
sketch20.addGeometry(Part.Circle(V(0, 16.327045, 0), V(0, 0, 1), 1.25), False)
sketch20.addGeometry(Part.Circle(V(-107.899193, 16.5, 0), V(0, 0, 1), 1.25), False)
sketch20.addConstraint(Sketcher.Constraint("Equal", 0, 1))
sketch20.addConstraint(Sketcher.Constraint("Equal", 1, 2))
sketch20.addConstraint(Sketcher.Constraint("Equal", 2, 3))
sketch20.addConstraint(Sketcher.Constraint("Equal", 3, 4))
sketch20.addConstraint(Sketcher.Constraint("Equal", 4, 5))
sketch20.addConstraint(Sketcher.Constraint("Equal", 5, 6))
sketch20.addConstraint(Sketcher.Constraint("Symmetric", 1, 3, 2, 3, -2))
sketch20.addConstraint(Sketcher.Constraint("Symmetric", 0, 3, 3, 3, -2))
sketch20.addConstraint(Sketcher.Constraint("Symmetric", 4, 3, 6, 3, -2))
sketch20.addConstraint(Sketcher.Constraint("PointOnObject", 5, 3, -2))
sketch20.addConstraint(Sketcher.Constraint("Horizontal", 0, 3, 1, 3))
sketch20.addConstraint(Sketcher.Constraint("Vertical", 3, 3, 4, 3))
sketch20.addConstraint(Sketcher.Constraint("Diameter", 0, 2.5))
sketch20.addConstraint(Sketcher.Constraint("DistanceX", 1, 3, -1, 1, 11.0))
sketch20.addConstraint(Sketcher.Constraint("DistanceY", -1, 1, 4, 3, 16.5))
sketch20.addConstraint(Sketcher.Constraint("DistanceY", 0, 3, -1, 1, 106.499439))
sketch20.addConstraint(Sketcher.Constraint("DistanceX", 0, 3, -1, 1, 107.899193))
sketch20.addConstraint(Sketcher.Constraint("DistanceY", -1, 1, 5, 3, 16.327045))
doc.recompute()
hole = body.newObject("PartDesign::Hole", "Hole")
hole.Profile = sketch20
hole.ThreadType = "None"
hole.Diameter = 2.5
hole.DepthType = "Dimension"
hole.Depth = 2.5
hole.DrillPoint = "Angled"
hole.DrillPointAngle = 118
doc.recompute()

fillet2 = body.newObject("PartDesign::Fillet", "Fillet001")
fillet2.Base = (hole, edges_at(hole, [
    (111.899, 6.35, -45),
    (0, 6.35, -110.499),
    (-111.899, 6.35, -45),
    (-111.899, 3.175, -110.499),
    (111.899, 3.175, -110.499),
    (111.899, 3.175, 20.5),
    (-111.899, 3.175, 20.5),
    (0, 6.35, 20.5),
]))
fillet2.Radius = 1.5

doc.recompute()
